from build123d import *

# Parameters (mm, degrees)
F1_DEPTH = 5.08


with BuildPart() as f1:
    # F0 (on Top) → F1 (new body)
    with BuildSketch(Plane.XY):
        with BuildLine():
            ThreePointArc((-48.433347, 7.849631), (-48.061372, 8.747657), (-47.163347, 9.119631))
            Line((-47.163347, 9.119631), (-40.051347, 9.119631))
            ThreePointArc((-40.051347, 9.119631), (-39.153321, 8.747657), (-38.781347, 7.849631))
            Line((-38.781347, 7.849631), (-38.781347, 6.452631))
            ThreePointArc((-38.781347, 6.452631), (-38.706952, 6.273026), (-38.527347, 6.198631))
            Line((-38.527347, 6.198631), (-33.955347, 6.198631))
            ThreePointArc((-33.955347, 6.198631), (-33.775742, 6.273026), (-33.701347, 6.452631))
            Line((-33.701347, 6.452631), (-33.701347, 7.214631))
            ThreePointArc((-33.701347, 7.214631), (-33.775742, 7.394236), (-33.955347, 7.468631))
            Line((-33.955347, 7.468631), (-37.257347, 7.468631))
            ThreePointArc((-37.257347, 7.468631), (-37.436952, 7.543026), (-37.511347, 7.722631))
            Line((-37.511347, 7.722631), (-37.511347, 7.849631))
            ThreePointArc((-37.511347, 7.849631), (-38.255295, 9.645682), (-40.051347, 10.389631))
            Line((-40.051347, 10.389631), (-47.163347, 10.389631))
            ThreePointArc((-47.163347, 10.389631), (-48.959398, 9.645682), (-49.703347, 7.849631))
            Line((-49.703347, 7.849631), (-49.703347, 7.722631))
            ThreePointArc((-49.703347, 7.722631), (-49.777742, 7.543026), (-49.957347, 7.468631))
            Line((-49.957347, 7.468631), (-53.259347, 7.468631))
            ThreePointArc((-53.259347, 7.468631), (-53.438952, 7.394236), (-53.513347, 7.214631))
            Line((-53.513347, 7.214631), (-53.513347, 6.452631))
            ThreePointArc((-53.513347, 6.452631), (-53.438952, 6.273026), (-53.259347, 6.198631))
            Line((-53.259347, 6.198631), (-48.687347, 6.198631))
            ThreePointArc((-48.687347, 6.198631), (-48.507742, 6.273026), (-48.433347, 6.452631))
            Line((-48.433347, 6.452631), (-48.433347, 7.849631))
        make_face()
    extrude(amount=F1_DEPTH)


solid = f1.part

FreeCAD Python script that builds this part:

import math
import FreeCAD as App
import Part
import Sketcher
from FreeCAD import Vector
Q = App.Units.Quantity

doc = App.newDocument("Part")
body = doc.addObject("PartDesign::Body", "Body")

# Sketch on XY plane
sketch1 = doc.addObject("Sketcher::SketchObject", "Sketch")
body.addObject(sketch1)
sketch1.AttachmentSupport = (doc.XY_Plane, [""])
sketch1.MapMode = "FlatFace"
sketch1.addGeometry([
    Part.ArcOfCircle(Part.Circle(Vector(-47.16, 7.85, 0), Vector(0, 0, 1), 1.27), math.radians(90), math.radians(180)),  # 0
    Part.LineSegment(Vector(-47.16, 9.12, 0), Vector(-40.05, 9.12, 0)),  # 1
    Part.ArcOfCircle(Part.Circle(Vector(-40.05, 7.85, 0), Vector(0, 0, 1), 1.27), math.radians(0), math.radians(90)),  # 2
    Part.LineSegment(Vector(-38.78, 7.85, 0), Vector(-38.78, 6.45, 0)),  # 3
    Part.ArcOfCircle(Part.Circle(Vector(-38.53, 6.45, 0), Vector(0, 0, 1), 0.25), math.radians(-180), math.radians(-90)),  # 4
    Part.LineSegment(Vector(-38.53, 6.2, 0), Vector(-33.96, 6.2, 0)),  # 5
    Part.ArcOfCircle(Part.Circle(Vector(-33.96, 6.45, 0), Vector(0, 0, 1), 0.25), math.radians(-90), math.radians(0)),  # 6
    Part.LineSegment(Vector(-33.7, 6.45, 0), Vector(-33.7, 7.21, 0)),  # 7
    Part.ArcOfCircle(Part.Circle(Vector(-33.96, 7.21, 0), Vector(0, 0, 1), 0.25), math.radians(0), math.radians(90)),  # 8
    Part.LineSegment(Vector(-33.96, 7.47, 0), Vector(-37.26, 7.47, 0)),  # 9
    Part.ArcOfCircle(Part.Circle(Vector(-37.26, 7.72, 0), Vector(0, 0, 1), 0.25), math.radians(-180), math.radians(-90)),  # 10
    Part.LineSegment(Vector(-37.51, 7.72, 0), Vector(-37.51, 7.85, 0)),  # 11
    Part.ArcOfCircle(Part.Circle(Vector(-40.05, 7.85, 0), Vector(0, 0, 1), 2.54), math.radians(0), math.radians(90)),  # 12
    Part.LineSegment(Vector(-40.05, 10.39, 0), Vector(-47.16, 10.39, 0)),  # 13
    Part.ArcOfCircle(Part.Circle(Vector(-47.16, 7.85, 0), Vector(0, 0, 1), 2.54), math.radians(90), math.radians(180)),  # 14
    Part.LineSegment(Vector(-49.7, 7.85, 0), Vector(-49.7, 7.72, 0)),  # 15
    Part.ArcOfCircle(Part.Circle(Vector(-49.96, 7.72, 0), Vector(0, 0, 1), 0.25), math.radians(-90), math.radians(0)),  # 16
    Part.LineSegment(Vector(-49.96, 7.47, 0), Vector(-53.26, 7.47, 0)),  # 17
    Part.ArcOfCircle(Part.Circle(Vector(-53.26, 7.21, 0), Vector(0, 0, 1), 0.25), math.radians(90), math.radians(180)),  # 18
    Part.LineSegment(Vector(-53.51, 7.21, 0), Vector(-53.51, 6.45, 0)),  # 19
    Part.ArcOfCircle(Part.Circle(Vector(-53.26, 6.45, 0), Vector(0, 0, 1), 0.25), math.radians(-180), math.radians(-90)),  # 20
    Part.LineSegment(Vector(-53.26, 6.2, 0), Vector(-48.69, 6.2, 0)),  # 21
    Part.ArcOfCircle(Part.Circle(Vector(-48.69, 6.45, 0), Vector(0, 0, 1), 0.25), math.radians(-90), math.radians(0)),  # 22
    Part.LineSegment(Vector(-48.43, 6.45, 0), Vector(-48.43, 7.85, 0)),  # 23
], False)
sketch1.addConstraint([
    Sketcher.Constraint("Tangent", 0, 1, 1, 1),
    Sketcher.Constraint("Tangent", 1, 2, 2, 2),
    Sketcher.Constraint("Tangent", 2, 1, 3, 1),
    Sketcher.Constraint("Tangent", 3, 2, 4, 1),
    Sketcher.Constraint("Tangent", 4, 2, 5, 1),
    Sketcher.Constraint("Tangent", 5, 2, 6, 1),
    Sketcher.Constraint("Tangent", 6, 2, 7, 1),
    Sketcher.Constraint("Tangent", 7, 2, 8, 1),
    Sketcher.Constraint("Tangent", 8, 2, 9, 1),
    Sketcher.Constraint("Tangent", 9, 2, 10, 2),
    Sketcher.Constraint("Tangent", 10, 1, 11, 1),
    Sketcher.Constraint("Tangent", 11, 2, 12, 1),
    Sketcher.Constraint("Tangent", 12, 2, 13, 1),
    Sketcher.Constraint("Tangent", 13, 2, 14, 1),
    Sketcher.Constraint("Tangent", 14, 2, 15, 1),
    Sketcher.Constraint("Tangent", 15, 2, 16, 2),
    Sketcher.Constraint("Tangent", 16, 1, 17, 1),
    Sketcher.Constraint("Tangent", 17, 2, 18, 1),
    Sketcher.Constraint("Tangent", 18, 2, 19, 1),
    Sketcher.Constraint("Tangent", 19, 2, 20, 1),
    Sketcher.Constraint("Tangent", 20, 2, 21, 1),
    Sketcher.Constraint("Tangent", 21, 2, 22, 1),
    Sketcher.Constraint("Tangent", 22, 2, 23, 1),
    Sketcher.Constraint("Tangent", 23, 2, 0, 2),
    Sketcher.Constraint("Horizontal", 1),
    Sketcher.Constraint("Vertical", 3),
    Sketcher.Constraint("Horizontal", 5),
    Sketcher.Constraint("Vertical", 7),
    Sketcher.Constraint("Horizontal", 9),
    Sketcher.Constraint("Vertical", 11),
    Sketcher.Constraint("Horizontal", 13),
    Sketcher.Constraint("Vertical", 15),
    Sketcher.Constraint("Horizontal", 17),
    Sketcher.Constraint("Vertical", 19),
    Sketcher.Constraint("Horizontal", 21),
    Sketcher.Constraint("Vertical", 23),
    Sketcher.Constraint("Coincident", 12, 3, 2, 3),
    Sketcher.Constraint("Coincident", 14, 3, 0, 3),
    Sketcher.Constraint("Equal", 0, 2),
    Sketcher.Constraint("Equal", 4, 6),
    Sketcher.Constraint("Equal", 6, 8),
    Sketcher.Constraint("Equal", 8, 10),
    Sketcher.Constraint("Equal", 10, 16),
    Sketcher.Constraint("Equal", 16, 18),
    Sketcher.Constraint("Equal", 18, 20),
    Sketcher.Constraint("Equal", 20, 22),
    Sketcher.Constraint("Horizontal", 10, 3, 16, 3),
    Sketcher.Constraint("Horizontal", 6, 3, 20, 3),
    Sketcher.Constraint("Equal", 9, 17),
    Sketcher.Constraint("Radius", 12, Q("0.1 in")),
    Sketcher.Constraint("Radius", 0, Q("0.05 in")),
    Sketcher.Constraint("Radius", 4, Q("0.01 in")),
    Sketcher.Constraint("DistanceX", 1, 1, 1, 2, Q("0.28 in")),
    Sketcher.Constraint("DistanceX", 5, 1, 5, 2, Q("0.18 in")),
    Sketcher.Constraint("DistanceY", 7, 1, 7, 2, Q("0.03 in")),
    Sketcher.Constraint("DistanceY", 3, 2, 3, 1, Q("0.055 in")),
    Sketcher.Constraint("DistanceY", -1, 1, 0, 3, 7.849631),
    Sketcher.Constraint("DistanceX", 0, 3, -1, 1, 47.163347),
])
pad1 = doc.addObject("PartDesign::Pad", "Pad")
body.addObject(pad1)
pad1.Profile = sketch1
pad1.Length = Q("0.2 in")

doc.recompute()
